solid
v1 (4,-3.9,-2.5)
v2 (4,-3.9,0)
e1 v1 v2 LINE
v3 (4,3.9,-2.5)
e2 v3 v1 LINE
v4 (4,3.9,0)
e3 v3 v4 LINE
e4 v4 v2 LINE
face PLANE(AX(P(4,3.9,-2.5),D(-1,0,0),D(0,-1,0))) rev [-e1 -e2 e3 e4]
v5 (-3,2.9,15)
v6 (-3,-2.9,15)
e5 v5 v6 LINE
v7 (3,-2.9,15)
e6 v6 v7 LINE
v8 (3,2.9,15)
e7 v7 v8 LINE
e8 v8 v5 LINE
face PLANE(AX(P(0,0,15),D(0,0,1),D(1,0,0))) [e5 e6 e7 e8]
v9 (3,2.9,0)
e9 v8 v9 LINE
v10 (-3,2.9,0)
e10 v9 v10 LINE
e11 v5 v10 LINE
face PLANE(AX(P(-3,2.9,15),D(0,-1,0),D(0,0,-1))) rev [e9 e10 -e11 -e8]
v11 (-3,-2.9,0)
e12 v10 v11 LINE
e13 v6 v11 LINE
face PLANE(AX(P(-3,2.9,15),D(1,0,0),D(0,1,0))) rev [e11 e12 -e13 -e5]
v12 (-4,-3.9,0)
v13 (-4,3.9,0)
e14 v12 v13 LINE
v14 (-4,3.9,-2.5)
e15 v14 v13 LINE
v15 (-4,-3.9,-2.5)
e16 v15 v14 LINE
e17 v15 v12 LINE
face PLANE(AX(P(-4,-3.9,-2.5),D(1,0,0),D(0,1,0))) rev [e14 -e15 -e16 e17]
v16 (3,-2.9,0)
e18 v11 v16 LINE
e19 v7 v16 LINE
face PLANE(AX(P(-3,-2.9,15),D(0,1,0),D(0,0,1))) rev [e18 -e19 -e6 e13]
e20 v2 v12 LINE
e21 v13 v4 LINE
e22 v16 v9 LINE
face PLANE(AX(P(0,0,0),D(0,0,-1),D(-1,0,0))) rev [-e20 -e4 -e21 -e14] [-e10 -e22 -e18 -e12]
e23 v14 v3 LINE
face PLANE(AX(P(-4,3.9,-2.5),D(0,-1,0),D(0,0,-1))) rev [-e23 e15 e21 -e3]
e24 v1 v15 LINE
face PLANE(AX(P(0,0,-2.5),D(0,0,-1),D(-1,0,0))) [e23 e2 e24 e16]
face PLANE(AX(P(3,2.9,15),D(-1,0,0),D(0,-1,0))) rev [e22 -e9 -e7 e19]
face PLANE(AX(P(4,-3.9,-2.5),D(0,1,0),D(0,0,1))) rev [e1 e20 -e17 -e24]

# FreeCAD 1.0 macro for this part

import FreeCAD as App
import Part
import Sketcher
from FreeCAD import Vector
Q = App.Units.Quantity

doc = App.newDocument("Part")
body = doc.addObject("PartDesign::Body", "Body")

# Sketch on XY plane
sketch1 = body.newObject("Sketcher::SketchObject", "Sketch")
sketch1.AttachmentSupport = (doc.getObject("XY_Plane"), [""])
sketch1.MapMode = "FlatFace"
sketch1.addGeometry(Part.LineSegment(Vector(-3, 3, 0), Vector(-3, -3, 0)), False)
sketch1.addGeometry(Part.LineSegment(Vector(-3, -3, 0), Vector(3, -3, 0)), False)
sketch1.addGeometry(Part.LineSegment(Vector(3, -3, 0), Vector(3, 3, 0)), False)
sketch1.addGeometry(Part.LineSegment(Vector(3, 3, 0), Vector(-3, 3, 0)), False)
sketch1.addConstraint(Sketcher.Constraint("Coincident", 0, 2, 1, 1))
sketch1.addConstraint(Sketcher.Constraint("Coincident", 1, 2, 2, 1))
sketch1.addConstraint(Sketcher.Constraint("Coincident", 2, 2, 3, 1))
sketch1.addConstraint(Sketcher.Constraint("Coincident", 3, 2, 0, 1))
sketch1.addConstraint(Sketcher.Constraint("Vertical", 0))
sketch1.addConstraint(Sketcher.Constraint("Horizontal", 1))
sketch1.addConstraint(Sketcher.Constraint("Vertical", 2))
sketch1.addConstraint(Sketcher.Constraint("Horizontal", 3))
sketch1.addConstraint(Sketcher.Constraint("Symmetric", 0, 2, 2, 2, -1, 1))
sketch1.addConstraint(Sketcher.Constraint("DistanceX", 1, 1, 1, 2, Q("6 mm")))
sketch1.addConstraint(Sketcher.Constraint("DistanceY", 0, 2, 0, 1, Q("5.8 mm")))
pad1 = body.newObject("PartDesign::Pad", "Pad")
pad1.Profile = sketch1
pad1.Length = 15

# Sketch on XY plane
sketch2 = body.newObject("Sketcher::SketchObject", "Sketch001")
sketch2.AttachmentSupport = (doc.getObject("XY_Plane"), [""])
sketch2.MapMode = "FlatFace"
sketch2.addGeometry(Part.LineSegment(Vector(4, 4, 0), Vector(4, -4, 0)), False)
sketch2.addGeometry(Part.LineSegment(Vector(4, -4, 0), Vector(-4, -4, 0)), False)
sketch2.addGeometry(Part.LineSegment(Vector(-4, -4, 0), Vector(-4, 4, 0)), False)
sketch2.addGeometry(Part.LineSegment(Vector(-4, 4, 0), Vector(4, 4, 0)), False)
sketch2.addConstraint(Sketcher.Constraint("Coincident", 0, 2, 1, 1))
sketch2.addConstraint(Sketcher.Constraint("Coincident", 1, 2, 2, 1))
sketch2.addConstraint(Sketcher.Constraint("Coincident", 2, 2, 3, 1))
sketch2.addConstraint(Sketcher.Constraint("Coincident", 3, 2, 0, 1))
sketch2.addConstraint(Sketcher.Constraint("Vertical", 0))
sketch2.addConstraint(Sketcher.Constraint("Horizontal", 1))
sketch2.addConstraint(Sketcher.Constraint("Vertical", 2))
sketch2.addConstraint(Sketcher.Constraint("Horizontal", 3))
sketch2.addConstraint(Sketcher.Constraint("Symmetric", 0, 2, 2, 2, -1, 1))
sketch2.addConstraint(Sketcher.Constraint("DistanceX", 1, 2, 1, 1, Q("8 mm")))
sketch2.addConstraint(Sketcher.Constraint("DistanceY", 0, 2, 0, 1, Q("7.8 mm")))
pad2 = body.newObject("PartDesign::Pad", "Pad001")
pad2.Profile = sketch2
pad2.Length = 2.5
pad2.Reversed = True

doc.recompute()
